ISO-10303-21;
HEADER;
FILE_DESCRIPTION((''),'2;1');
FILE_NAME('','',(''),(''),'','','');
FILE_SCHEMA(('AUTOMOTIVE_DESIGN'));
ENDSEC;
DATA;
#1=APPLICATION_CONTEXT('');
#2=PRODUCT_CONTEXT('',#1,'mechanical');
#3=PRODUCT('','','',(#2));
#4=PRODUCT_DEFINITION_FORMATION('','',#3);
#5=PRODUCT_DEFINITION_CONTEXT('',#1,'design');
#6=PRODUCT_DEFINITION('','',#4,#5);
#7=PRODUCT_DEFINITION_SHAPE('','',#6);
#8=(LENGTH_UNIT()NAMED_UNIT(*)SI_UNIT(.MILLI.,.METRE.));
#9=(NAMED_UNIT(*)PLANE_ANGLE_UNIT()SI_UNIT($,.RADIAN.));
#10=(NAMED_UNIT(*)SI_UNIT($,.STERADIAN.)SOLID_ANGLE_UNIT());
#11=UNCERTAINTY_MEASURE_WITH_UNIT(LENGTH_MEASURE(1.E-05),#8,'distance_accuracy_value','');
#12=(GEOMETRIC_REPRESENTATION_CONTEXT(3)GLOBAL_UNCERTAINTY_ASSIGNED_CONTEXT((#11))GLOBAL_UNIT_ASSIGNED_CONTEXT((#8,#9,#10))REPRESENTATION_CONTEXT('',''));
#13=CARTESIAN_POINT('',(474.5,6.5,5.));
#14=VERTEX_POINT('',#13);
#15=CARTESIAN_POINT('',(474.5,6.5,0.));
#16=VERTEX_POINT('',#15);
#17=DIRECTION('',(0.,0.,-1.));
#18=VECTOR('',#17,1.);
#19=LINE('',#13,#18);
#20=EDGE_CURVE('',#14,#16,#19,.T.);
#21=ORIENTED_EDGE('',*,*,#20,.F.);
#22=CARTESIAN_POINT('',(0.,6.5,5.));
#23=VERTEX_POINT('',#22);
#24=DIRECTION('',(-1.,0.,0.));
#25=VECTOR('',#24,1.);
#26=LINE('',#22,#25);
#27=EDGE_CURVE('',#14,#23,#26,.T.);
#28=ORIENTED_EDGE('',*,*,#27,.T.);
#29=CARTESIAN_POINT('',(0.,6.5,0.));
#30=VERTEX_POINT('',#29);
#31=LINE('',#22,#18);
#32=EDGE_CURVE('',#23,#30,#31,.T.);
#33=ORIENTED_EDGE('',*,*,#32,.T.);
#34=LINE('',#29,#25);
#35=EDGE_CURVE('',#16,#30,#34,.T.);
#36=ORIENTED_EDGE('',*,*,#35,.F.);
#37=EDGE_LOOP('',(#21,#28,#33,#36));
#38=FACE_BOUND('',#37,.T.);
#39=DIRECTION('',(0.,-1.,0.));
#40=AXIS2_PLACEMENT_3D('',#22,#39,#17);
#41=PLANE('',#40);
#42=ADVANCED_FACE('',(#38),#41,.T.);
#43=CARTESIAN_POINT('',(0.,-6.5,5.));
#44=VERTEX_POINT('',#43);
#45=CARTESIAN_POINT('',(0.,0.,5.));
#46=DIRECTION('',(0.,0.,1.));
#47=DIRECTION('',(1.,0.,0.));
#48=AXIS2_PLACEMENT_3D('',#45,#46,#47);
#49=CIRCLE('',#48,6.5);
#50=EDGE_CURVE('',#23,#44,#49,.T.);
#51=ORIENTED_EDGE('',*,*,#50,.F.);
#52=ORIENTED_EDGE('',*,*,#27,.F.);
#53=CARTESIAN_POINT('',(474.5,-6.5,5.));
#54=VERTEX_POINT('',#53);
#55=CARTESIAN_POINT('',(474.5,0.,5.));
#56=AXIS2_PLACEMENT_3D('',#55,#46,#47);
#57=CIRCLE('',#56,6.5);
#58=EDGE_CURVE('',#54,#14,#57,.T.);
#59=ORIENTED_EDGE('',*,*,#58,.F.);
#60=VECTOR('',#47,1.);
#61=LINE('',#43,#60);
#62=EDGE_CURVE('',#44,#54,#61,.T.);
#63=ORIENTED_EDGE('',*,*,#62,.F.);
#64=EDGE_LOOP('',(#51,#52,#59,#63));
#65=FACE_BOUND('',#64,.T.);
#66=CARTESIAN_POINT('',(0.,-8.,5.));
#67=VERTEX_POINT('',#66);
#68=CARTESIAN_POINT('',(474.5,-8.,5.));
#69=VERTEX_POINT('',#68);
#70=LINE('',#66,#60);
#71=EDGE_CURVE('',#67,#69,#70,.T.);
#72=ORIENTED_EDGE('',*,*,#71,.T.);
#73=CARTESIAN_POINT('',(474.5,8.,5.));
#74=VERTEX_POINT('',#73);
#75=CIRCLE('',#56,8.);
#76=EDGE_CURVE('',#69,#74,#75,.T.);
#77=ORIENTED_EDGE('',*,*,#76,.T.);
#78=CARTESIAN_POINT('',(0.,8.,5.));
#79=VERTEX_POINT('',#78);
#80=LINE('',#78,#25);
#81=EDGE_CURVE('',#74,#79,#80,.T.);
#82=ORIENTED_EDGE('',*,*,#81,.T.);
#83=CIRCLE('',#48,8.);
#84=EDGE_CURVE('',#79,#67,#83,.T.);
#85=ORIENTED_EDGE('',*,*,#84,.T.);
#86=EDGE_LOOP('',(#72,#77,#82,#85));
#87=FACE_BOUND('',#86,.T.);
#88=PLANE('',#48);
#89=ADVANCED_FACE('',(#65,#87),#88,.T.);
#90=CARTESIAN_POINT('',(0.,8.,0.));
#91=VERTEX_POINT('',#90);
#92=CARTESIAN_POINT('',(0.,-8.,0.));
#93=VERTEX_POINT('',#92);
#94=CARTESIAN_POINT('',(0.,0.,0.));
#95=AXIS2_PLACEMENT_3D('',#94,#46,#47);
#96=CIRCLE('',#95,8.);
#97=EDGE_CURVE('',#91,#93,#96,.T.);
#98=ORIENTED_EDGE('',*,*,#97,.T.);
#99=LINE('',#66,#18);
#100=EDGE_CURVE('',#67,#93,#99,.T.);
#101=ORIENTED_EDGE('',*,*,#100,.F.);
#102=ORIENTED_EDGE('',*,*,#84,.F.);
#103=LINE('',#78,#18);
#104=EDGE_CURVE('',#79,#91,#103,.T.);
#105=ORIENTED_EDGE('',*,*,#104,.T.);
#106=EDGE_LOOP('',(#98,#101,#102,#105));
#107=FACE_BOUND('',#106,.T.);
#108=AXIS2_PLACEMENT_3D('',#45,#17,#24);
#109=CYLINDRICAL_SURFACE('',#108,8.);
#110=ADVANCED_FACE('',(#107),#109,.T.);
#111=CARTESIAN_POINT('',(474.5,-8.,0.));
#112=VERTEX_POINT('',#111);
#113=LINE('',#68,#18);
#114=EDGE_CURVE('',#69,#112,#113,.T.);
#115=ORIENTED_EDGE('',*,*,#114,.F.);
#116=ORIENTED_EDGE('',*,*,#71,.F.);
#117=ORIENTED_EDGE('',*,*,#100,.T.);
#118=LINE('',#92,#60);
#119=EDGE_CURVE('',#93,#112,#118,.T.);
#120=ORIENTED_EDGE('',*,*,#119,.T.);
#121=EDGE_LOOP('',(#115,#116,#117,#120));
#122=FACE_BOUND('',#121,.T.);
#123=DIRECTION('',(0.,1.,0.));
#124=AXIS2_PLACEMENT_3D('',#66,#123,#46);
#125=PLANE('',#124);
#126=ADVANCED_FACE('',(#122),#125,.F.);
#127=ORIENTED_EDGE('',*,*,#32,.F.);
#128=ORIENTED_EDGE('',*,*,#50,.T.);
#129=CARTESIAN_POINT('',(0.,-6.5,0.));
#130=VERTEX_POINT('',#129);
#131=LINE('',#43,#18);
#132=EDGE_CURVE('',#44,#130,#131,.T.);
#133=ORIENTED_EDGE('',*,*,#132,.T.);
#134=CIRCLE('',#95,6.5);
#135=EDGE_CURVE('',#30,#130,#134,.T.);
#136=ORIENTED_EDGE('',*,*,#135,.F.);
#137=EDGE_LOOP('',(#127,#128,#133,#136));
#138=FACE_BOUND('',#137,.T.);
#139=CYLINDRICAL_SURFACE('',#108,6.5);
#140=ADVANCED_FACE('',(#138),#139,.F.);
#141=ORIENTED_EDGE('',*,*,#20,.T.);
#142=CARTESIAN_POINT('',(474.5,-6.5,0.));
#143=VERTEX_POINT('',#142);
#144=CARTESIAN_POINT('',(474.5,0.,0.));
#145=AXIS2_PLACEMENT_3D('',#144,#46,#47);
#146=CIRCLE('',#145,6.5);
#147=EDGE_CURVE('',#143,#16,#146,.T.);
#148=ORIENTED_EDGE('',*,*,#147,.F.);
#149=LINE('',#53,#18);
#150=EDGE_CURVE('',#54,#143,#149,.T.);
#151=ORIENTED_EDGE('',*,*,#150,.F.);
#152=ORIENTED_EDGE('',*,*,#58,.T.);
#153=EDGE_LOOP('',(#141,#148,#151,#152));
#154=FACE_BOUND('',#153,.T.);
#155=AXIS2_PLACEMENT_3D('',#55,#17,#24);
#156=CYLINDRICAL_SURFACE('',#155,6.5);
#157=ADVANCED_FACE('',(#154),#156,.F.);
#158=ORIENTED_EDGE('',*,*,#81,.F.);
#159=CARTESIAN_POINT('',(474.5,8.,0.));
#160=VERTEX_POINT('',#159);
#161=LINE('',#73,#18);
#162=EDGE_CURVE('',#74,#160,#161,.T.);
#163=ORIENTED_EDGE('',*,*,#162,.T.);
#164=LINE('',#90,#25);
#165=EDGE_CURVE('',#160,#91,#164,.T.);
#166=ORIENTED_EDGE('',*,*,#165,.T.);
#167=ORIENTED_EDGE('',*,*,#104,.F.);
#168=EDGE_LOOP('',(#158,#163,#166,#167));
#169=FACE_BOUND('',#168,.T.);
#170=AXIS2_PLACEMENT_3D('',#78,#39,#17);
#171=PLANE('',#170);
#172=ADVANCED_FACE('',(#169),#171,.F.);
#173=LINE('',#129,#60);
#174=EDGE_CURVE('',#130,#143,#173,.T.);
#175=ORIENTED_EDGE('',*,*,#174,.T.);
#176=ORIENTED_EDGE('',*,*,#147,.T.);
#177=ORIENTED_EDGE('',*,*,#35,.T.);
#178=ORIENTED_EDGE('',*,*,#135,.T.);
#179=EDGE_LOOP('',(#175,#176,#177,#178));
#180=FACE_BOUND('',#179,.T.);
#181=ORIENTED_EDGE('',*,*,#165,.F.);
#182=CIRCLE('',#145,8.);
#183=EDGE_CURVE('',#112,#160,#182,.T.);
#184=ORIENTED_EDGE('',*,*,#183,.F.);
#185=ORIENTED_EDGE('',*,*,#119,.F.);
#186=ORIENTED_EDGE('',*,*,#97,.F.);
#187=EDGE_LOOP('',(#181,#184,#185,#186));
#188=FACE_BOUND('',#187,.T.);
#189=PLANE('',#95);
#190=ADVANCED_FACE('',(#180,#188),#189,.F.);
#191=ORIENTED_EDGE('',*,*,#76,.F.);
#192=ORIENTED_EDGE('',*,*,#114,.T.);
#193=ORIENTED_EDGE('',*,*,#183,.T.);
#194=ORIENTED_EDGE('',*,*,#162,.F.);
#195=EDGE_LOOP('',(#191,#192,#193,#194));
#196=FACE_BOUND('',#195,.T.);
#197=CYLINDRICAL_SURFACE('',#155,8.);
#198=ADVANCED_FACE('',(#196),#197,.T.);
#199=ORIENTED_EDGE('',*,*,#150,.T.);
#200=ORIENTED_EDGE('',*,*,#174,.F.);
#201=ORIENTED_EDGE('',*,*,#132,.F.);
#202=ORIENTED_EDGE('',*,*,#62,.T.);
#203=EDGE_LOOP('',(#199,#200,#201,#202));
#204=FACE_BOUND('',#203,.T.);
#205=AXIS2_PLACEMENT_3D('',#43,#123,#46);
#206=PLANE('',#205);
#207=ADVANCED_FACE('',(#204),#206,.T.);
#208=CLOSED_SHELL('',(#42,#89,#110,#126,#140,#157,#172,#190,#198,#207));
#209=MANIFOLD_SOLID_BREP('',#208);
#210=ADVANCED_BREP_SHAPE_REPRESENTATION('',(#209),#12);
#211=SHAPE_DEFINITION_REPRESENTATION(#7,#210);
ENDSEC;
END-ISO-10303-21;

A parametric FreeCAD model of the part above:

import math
import FreeCAD as App
import Part
import Sketcher

V = App.Vector

doc = App.newDocument("Part")
body = doc.addObject("PartDesign::Body", "Body")

sketch1 = doc.addObject("Sketcher::SketchObject", "Sketch")
body.addObject(sketch1)
sketch1.AttachmentSupport = (doc.XY_Plane, [""])
sketch1.MapMode = "FlatFace"
sketch1.addGeometry([
    Part.LineSegment(V(474, 8, 0), V(0, 8, 0)),
    Part.ArcOfCircle(Part.Circle(V(0, 0, 0), V(0, 0, 1), 8), math.radians(90), math.radians(270)),
    Part.LineSegment(V(0, -8, 0), V(474, -8, 0)),
    Part.ArcOfCircle(Part.Circle(V(474, 0, 0), V(0, 0, 1), 8), math.radians(-90), math.radians(90)),
    Part.LineSegment(V(0, 6, 0), V(474, 6, 0)),
    Part.ArcOfCircle(Part.Circle(V(474, 0, 0), V(0, 0, 1), 6), math.radians(-90), math.radians(90)),
    Part.LineSegment(V(474, -6, 0), V(0, -6, 0)),
    Part.ArcOfCircle(Part.Circle(V(0, 0, 0), V(0, 0, 1), 6), math.radians(90), math.radians(270)),
], False)
sketch1.addConstraint([
    Sketcher.Constraint("Tangent", 0, 2, 1, 1),
    Sketcher.Constraint("Tangent", 1, 2, 2, 1),
    Sketcher.Constraint("Tangent", 2, 2, 3, 1),
    Sketcher.Constraint("Tangent", 3, 2, 0, 1),
    Sketcher.Constraint("Tangent", 4, 2, 5, 2),
    Sketcher.Constraint("Tangent", 5, 1, 6, 1),
    Sketcher.Constraint("Tangent", 6, 2, 7, 2),
    Sketcher.Constraint("Tangent", 7, 1, 4, 1),
    Sketcher.Constraint("Horizontal", 0),
    Sketcher.Constraint("Horizontal", 2),
    Sketcher.Constraint("Horizontal", 4),
    Sketcher.Constraint("Horizontal", 6),
    Sketcher.Constraint("Coincident", 1, 3, -1, 1),
    Sketcher.Constraint("Coincident", 7, 3, -1, 1),
    Sketcher.Constraint("Vertical", 5, 3, 2, 2),
    Sketcher.Constraint("Radius", 1, 8.0),
    Sketcher.Constraint("Radius", 5, 6.5),
    Sketcher.Constraint("DistanceX", 0, 2, 0, 1, 474.5),
])
pad1 = doc.addObject("PartDesign::Pad", "Pad")
body.addObject(pad1)
pad1.Profile = sketch1
pad1.Length = 5

doc.recompute()
